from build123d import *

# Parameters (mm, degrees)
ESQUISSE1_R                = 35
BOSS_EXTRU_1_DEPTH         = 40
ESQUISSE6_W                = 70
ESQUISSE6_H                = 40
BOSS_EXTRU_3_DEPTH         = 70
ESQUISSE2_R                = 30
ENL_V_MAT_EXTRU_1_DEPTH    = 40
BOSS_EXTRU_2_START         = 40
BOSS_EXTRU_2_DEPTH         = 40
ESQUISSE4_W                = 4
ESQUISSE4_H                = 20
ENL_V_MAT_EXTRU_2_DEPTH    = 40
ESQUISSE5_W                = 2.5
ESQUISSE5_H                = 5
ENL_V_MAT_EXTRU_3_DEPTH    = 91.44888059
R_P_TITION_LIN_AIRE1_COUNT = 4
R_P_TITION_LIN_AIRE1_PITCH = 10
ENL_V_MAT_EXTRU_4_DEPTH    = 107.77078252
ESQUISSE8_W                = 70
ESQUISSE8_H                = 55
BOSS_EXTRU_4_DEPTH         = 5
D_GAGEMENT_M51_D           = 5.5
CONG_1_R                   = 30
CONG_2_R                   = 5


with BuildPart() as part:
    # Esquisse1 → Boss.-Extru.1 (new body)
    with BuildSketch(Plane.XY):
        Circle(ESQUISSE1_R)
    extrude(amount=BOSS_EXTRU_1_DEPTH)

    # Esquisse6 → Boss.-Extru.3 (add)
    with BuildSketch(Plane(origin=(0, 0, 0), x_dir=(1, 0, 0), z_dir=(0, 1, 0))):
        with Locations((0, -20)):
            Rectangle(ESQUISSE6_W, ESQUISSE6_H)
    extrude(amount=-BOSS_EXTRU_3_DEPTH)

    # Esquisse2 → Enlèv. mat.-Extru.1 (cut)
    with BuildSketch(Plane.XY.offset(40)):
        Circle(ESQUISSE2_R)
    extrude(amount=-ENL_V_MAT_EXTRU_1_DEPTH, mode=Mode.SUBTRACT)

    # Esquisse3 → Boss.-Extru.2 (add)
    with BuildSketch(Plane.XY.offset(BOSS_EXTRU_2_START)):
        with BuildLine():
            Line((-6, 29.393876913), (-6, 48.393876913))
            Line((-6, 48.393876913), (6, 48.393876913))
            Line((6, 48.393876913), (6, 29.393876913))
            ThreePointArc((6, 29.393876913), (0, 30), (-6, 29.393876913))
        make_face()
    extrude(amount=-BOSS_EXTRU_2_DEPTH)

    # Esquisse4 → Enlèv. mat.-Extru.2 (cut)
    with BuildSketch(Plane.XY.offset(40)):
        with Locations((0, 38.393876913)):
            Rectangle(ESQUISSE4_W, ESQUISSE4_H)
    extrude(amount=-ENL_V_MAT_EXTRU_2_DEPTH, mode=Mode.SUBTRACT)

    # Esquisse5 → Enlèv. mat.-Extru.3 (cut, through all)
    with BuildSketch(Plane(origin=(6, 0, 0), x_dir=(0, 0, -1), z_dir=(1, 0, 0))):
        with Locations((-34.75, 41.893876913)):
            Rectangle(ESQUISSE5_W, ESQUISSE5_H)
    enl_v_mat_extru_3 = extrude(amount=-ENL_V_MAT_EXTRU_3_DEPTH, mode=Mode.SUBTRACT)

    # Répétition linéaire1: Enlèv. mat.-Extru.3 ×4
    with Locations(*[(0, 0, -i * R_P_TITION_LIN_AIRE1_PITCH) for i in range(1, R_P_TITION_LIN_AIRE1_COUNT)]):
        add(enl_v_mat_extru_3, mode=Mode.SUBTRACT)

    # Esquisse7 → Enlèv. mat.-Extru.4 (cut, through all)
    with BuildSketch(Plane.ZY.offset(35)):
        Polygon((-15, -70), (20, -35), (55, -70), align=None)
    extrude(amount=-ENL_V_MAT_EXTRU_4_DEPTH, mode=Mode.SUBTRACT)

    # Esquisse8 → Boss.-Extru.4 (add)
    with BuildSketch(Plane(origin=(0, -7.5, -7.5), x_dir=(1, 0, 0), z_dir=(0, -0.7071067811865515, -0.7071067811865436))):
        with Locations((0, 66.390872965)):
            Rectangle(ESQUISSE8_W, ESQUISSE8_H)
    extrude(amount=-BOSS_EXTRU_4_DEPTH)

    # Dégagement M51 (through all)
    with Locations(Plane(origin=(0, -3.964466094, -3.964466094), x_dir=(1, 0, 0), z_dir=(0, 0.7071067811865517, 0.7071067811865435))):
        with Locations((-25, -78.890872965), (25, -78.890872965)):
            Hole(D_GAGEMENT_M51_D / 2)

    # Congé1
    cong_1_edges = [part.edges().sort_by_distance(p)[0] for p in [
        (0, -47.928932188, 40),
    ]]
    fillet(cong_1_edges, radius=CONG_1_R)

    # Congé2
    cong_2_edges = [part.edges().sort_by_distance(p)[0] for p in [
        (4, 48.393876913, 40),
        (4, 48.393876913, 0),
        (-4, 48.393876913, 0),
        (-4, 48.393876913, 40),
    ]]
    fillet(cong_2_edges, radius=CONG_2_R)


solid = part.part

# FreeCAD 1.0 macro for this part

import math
import FreeCAD as App
import Part
import Sketcher


def edges_at(feature, points):
    """Names of the edges that pass closest to the given points."""
    edges = feature.Shape.Edges
    near = lambda p: min(range(len(edges)), key=lambda i: edges[i].distToShape(Part.Vertex(*p))[0])
    return sorted({f"Edge{near(p) + 1}" for p in points})

doc = App.newDocument("Part")
body = doc.addObject("PartDesign::Body", "Body")

sketch1 = doc.addObject("Sketcher::SketchObject", "Sketch")
body.addObject(sketch1)
sketch1.AttachmentSupport = (doc.XY_Plane, [""])
sketch1.MapMode = "FlatFace"
sketch1.addGeometry(Part.Circle(App.Vector(0, 0, 0), App.Vector(0, 0, 1), 35), False)
sketch1.addConstraint([
    Sketcher.Constraint("Coincident", 0, 3, -1, 1),
    Sketcher.Constraint("Diameter", 0, 70.0),
])
pad1 = doc.addObject("PartDesign::Pad", "Pad")
body.addObject(pad1)
pad1.Profile = sketch1
pad1.Length = 40

sketch2 = doc.addObject("Sketcher::SketchObject", "Sketch001")
body.addObject(sketch2)
sketch2.AttachmentSupport = (doc.XZ_Plane, [""])
sketch2.MapMode = "FlatFace"
sketch2.addGeometry([
    Part.LineSegment(App.Vector(-35, 0, 0), App.Vector(-35, 40, 0)),
    Part.LineSegment(App.Vector(-35, 40, 0), App.Vector(35, 40, 0)),
    Part.LineSegment(App.Vector(35, 40, 0), App.Vector(35, 0, 0)),
    Part.LineSegment(App.Vector(35, 0, 0), App.Vector(-35, 0, 0)),
], False)
sketch2.addConstraint([
    Sketcher.Constraint("Coincident", 0, 2, 1, 1),
    Sketcher.Constraint("Coincident", 1, 2, 2, 1),
    Sketcher.Constraint("Coincident", 2, 2, 3, 1),
    Sketcher.Constraint("Coincident", 3, 2, 0, 1),
    Sketcher.Constraint("Vertical", 0),
    Sketcher.Constraint("Horizontal", 1),
    Sketcher.Constraint("Vertical", 2),
    Sketcher.Constraint("Horizontal", 3),
    Sketcher.Constraint("Symmetric", 2, 2, 3, 2, -1, 1),
    Sketcher.Constraint("DistanceX", 1, 1, 1, 2, 70.0),
    Sketcher.Constraint("DistanceY", 0, 1, 0, 2, 40.0),
])
pad2 = doc.addObject("PartDesign::Pad", "Pad001")
body.addObject(pad2)
pad2.Profile = sketch2
pad2.Length = 70

sketch3 = doc.addObject("Sketcher::SketchObject", "Sketch002")
body.addObject(sketch3)
sketch3.AttachmentSupport = (doc.XY_Plane, [""])
sketch3.MapMode = "FlatFace"
sketch3.AttachmentOffset = App.Placement(App.Vector(0, 0, 40), App.Rotation())
sketch3.addGeometry(Part.Circle(App.Vector(0, 0, 0), App.Vector(0, 0, 1), 30), False)
sketch3.addConstraint([
    Sketcher.Constraint("Coincident", 0, 3, -1, 1),
    Sketcher.Constraint("Diameter", 0, 60.0),
])
pocket1 = doc.addObject("PartDesign::Pocket", "Pocket")
body.addObject(pocket1)
pocket1.Profile = sketch3
pocket1.Length = 40

sketch4 = doc.addObject("Sketcher::SketchObject", "Sketch003")
body.addObject(sketch4)
sketch4.AttachmentSupport = (doc.XY_Plane, [""])
sketch4.MapMode = "FlatFace"
sketch4.AttachmentOffset = App.Placement(App.Vector(0, 0, 40), App.Rotation())
sketch4.addGeometry([
    Part.LineSegment(App.Vector(-6, 48, 0), App.Vector(-6, 29, 0)),
    Part.ArcOfCircle(Part.Circle(App.Vector(0, 0, 0), App.Vector(0, 0, 1), 30), math.radians(78), math.radians(102)),
    Part.LineSegment(App.Vector(6, 29, 0), App.Vector(6, 48, 0)),
    Part.LineSegment(App.Vector(6, 48, 0), App.Vector(-6, 48, 0)),
], False)
sketch4.addConstraint([
    Sketcher.Constraint("Coincident", 0, 2, 1, 2),
    Sketcher.Constraint("Coincident", 1, 1, 2, 1),
    Sketcher.Constraint("Coincident", 2, 2, 3, 1),
    Sketcher.Constraint("Coincident", 3, 2, 0, 1),
    Sketcher.Constraint("Vertical", 0),
    Sketcher.Constraint("Vertical", 2),
    Sketcher.Constraint("Horizontal", 3),
    Sketcher.Constraint("Coincident", 1, 3, -1, 1),
    Sketcher.Constraint("Horizontal", 0, 2, 1, 1),
    Sketcher.Constraint("Radius", 1, 30.0),
    Sketcher.Constraint("DistanceX", 3, 2, 3, 1, 12.0),
    Sketcher.Constraint("DistanceY", 0, 2, 0, 1, 19.0),
])
pad3 = doc.addObject("PartDesign::Pad", "Pad002")
body.addObject(pad3)
pad3.Profile = sketch4
pad3.Length = 40
pad3.Reversed = True

sketch5 = doc.addObject("Sketcher::SketchObject", "Sketch004")
body.addObject(sketch5)
sketch5.AttachmentSupport = (doc.XY_Plane, [""])
sketch5.MapMode = "FlatFace"
sketch5.AttachmentOffset = App.Placement(App.Vector(0, 0, 40), App.Rotation())
sketch5.addGeometry([
    Part.LineSegment(App.Vector(-2, 48.4, 0), App.Vector(-2, 28.4, 0)),
    Part.LineSegment(App.Vector(-2, 28.4, 0), App.Vector(2, 28.4, 0)),
    Part.LineSegment(App.Vector(2, 28.4, 0), App.Vector(2, 48.4, 0)),
    Part.LineSegment(App.Vector(2, 48.4, 0), App.Vector(-2, 48.4, 0)),
], False)
sketch5.addConstraint([
    Sketcher.Constraint("Coincident", 0, 2, 1, 1),
    Sketcher.Constraint("Coincident", 1, 2, 2, 1),
    Sketcher.Constraint("Coincident", 2, 2, 3, 1),
    Sketcher.Constraint("Coincident", 3, 2, 0, 1),
    Sketcher.Constraint("Vertical", 0),
    Sketcher.Constraint("Horizontal", 1),
    Sketcher.Constraint("Vertical", 2),
    Sketcher.Constraint("Horizontal", 3),
    Sketcher.Constraint("DistanceX", 1, 1, 1, 2, 4.0),
    Sketcher.Constraint("DistanceY", 0, 2, 0, 1, 20.0),
    Sketcher.Constraint("DistanceX", 0, 2, -1, 1, 2.0),
    Sketcher.Constraint("DistanceY", -1, 1, 0, 2, 28.393877),
])
pocket2 = doc.addObject("PartDesign::Pocket", "Pocket001")
body.addObject(pocket2)
pocket2.Profile = sketch5
pocket2.Length = 40

sketch6 = doc.addObject("Sketcher::SketchObject", "Sketch005")
body.addObject(sketch6)
sketch6.AttachmentSupport = (doc.YZ_Plane, [""])
sketch6.MapMode = "FlatFace"
sketch6.AttachmentOffset = App.Placement(App.Vector(0, 0, 6), App.Rotation())
sketch6.addGeometry([
    Part.LineSegment(App.Vector(44.4, 36, 0), App.Vector(39.4, 36, 0)),
    Part.LineSegment(App.Vector(39.4, 36, 0), App.Vector(39.4, 33.5, 0)),
    Part.LineSegment(App.Vector(39.4, 33.5, 0), App.Vector(44.4, 33.5, 0)),
    Part.LineSegment(App.Vector(44.4, 33.5, 0), App.Vector(44.4, 36, 0)),
], False)
sketch6.addConstraint([
    Sketcher.Constraint("Coincident", 0, 2, 1, 1),
    Sketcher.Constraint("Coincident", 1, 2, 2, 1),
    Sketcher.Constraint("Coincident", 2, 2, 3, 1),
    Sketcher.Constraint("Coincident", 3, 2, 0, 1),
    Sketcher.Constraint("Horizontal", 0),
    Sketcher.Constraint("Vertical", 1),
    Sketcher.Constraint("Horizontal", 2),
    Sketcher.Constraint("Vertical", 3),
    Sketcher.Constraint("DistanceX", 0, 2, 0, 1, 5.0),
    Sketcher.Constraint("DistanceY", 1, 2, 1, 1, 2.5),
    Sketcher.Constraint("DistanceY", -1, 1, 0, 2, 36.0),
    Sketcher.Constraint("DistanceX", -1, 1, 0, 2, 39.393877),
])
pocket3 = doc.addObject("PartDesign::Pocket", "Pocket002")
body.addObject(pocket3)
pocket3.Profile = sketch6
pocket3.Type = "ThroughAll"
doc.recompute()

linearpattern = doc.addObject("PartDesign::LinearPattern", "LinearPattern")
body.addObject(linearpattern)
linearpattern.Originals = [pocket3]
linearpattern.Direction = (doc.Z_Axis, [""])
linearpattern.Mode = "offset"
linearpattern.Offset = 10
linearpattern.Occurrences = 4
linearpattern.Reversed = True
body.Tip = linearpattern

sketch7 = doc.addObject("Sketcher::SketchObject", "Sketch006")
body.addObject(sketch7)
sketch7.AttachmentSupport = (doc.YZ_Plane, [""])
sketch7.MapMode = "FlatFace"
sketch7.AttachmentOffset = App.Placement(App.Vector(0, 0, -35), App.Rotation())
sketch7.addGeometry([
    Part.LineSegment(App.Vector(-35, 20, 0), App.Vector(-70, -15, 0)),
    Part.LineSegment(App.Vector(-70, -15, 0), App.Vector(-70, 55, 0)),
    Part.LineSegment(App.Vector(-70, 55, 0), App.Vector(-35, 20, 0)),
], False)
sketch7.addConstraint([
    Sketcher.Constraint("Coincident", 0, 2, 1, 1),
    Sketcher.Constraint("Coincident", 1, 2, 2, 1),
    Sketcher.Constraint("Coincident", 2, 2, 0, 1),
    Sketcher.Constraint("Vertical", 1),
    Sketcher.Constraint("Perpendicular", 0, 2),
    Sketcher.Constraint("Equal", 0, 2),
    Sketcher.Constraint("DistanceY", 1, 1, 1, 2, 70.0),
    Sketcher.Constraint("DistanceX", 0, 2, -1, 1, 70.0),
    Sketcher.Constraint("DistanceY", 0, 2, -1, 1, 15.0),
])
pocket4 = doc.addObject("PartDesign::Pocket", "Pocket003")
body.addObject(pocket4)
pocket4.Profile = sketch7
pocket4.Type = "ThroughAll"
pocket4.Reversed = True

sketch8 = doc.addObject("Sketcher::SketchObject", "Sketch007")
body.addObject(sketch8)
sketch8.Placement = App.Placement(App.Vector(0, -7.5, -7.5), App.Rotation(App.Vector(1, 0, 0), App.Vector(0, -0.707106781, 0.707106781), App.Vector(0, -0.707106781, -0.707106781), "ZXY"))
sketch8.addGeometry([
    Part.LineSegment(App.Vector(-35, 94, 0), App.Vector(-35, 39, 0)),
    Part.LineSegment(App.Vector(-35, 39, 0), App.Vector(35, 39, 0)),
    Part.LineSegment(App.Vector(35, 39, 0), App.Vector(35, 94, 0)),
    Part.LineSegment(App.Vector(35, 94, 0), App.Vector(-35, 94, 0)),
], False)
sketch8.addConstraint([
    Sketcher.Constraint("Coincident", 0, 2, 1, 1),
    Sketcher.Constraint("Coincident", 1, 2, 2, 1),
    Sketcher.Constraint("Coincident", 2, 2, 3, 1),
    Sketcher.Constraint("Coincident", 3, 2, 0, 1),
    Sketcher.Constraint("Vertical", 0),
    Sketcher.Constraint("Horizontal", 1),
    Sketcher.Constraint("Vertical", 2),
    Sketcher.Constraint("Horizontal", 3),
    Sketcher.Constraint("DistanceX", 1, 1, 1, 2, 70.0),
    Sketcher.Constraint("DistanceY", 0, 2, 0, 1, 55.0),
    Sketcher.Constraint("DistanceX", 0, 2, -1, 1, 35.0),
    Sketcher.Constraint("DistanceY", -1, 1, 0, 2, 38.890873),
])
pad4 = doc.addObject("PartDesign::Pad", "Pad003")
body.addObject(pad4)
pad4.Profile = sketch8
pad4.Length = 5
pad4.Reversed = True

sketch9 = doc.addObject("Sketcher::SketchObject", "Sketch008")
body.addObject(sketch9)
sketch9.Placement = App.Placement(App.Vector(0, -3.964466, -3.964466), App.Rotation(App.Vector(1, 0, 0), App.Vector(0, 0.707106781, -0.707106781), App.Vector(0, 0.707106781, 0.707106781), "ZXY"))
sketch9.addGeometry([
    Part.Circle(App.Vector(-25, -78.9, 0), App.Vector(0, 0, 1), 2.8),
    Part.Circle(App.Vector(25, -78.9, 0), App.Vector(0, 0, 1), 2.8),
], False)
sketch9.addConstraint([
    Sketcher.Constraint("Equal", 0, 1),
    Sketcher.Constraint("Symmetric", 0, 3, 1, 3, -2),
    Sketcher.Constraint("Diameter", 0, 5.5),
    Sketcher.Constraint("DistanceX", 0, 3, -1, 1, 25.0),
    Sketcher.Constraint("DistanceY", 0, 3, -1, 1, 78.890873),
])
doc.recompute()
hole = doc.addObject("PartDesign::Hole", "Hole")
body.addObject(hole)
hole.Profile = sketch9
hole.ThreadType = "None"
hole.Diameter = 5.5
hole.DepthType = "ThroughAll"
doc.recompute()

fillet = doc.addObject("PartDesign::Fillet", "Fillet")
body.addObject(fillet)
fillet.Base = (hole, edges_at(hole, [(0, -47.929, 40)]))
fillet.Radius = 30
doc.recompute()

fillet2 = doc.addObject("PartDesign::Fillet", "Fillet001")
body.addObject(fillet2)
fillet2.Base = (fillet, edges_at(fillet, [
    (4, 48.394, 40),
    (4, 48.394, 0),
    (-4, 48.394, 0),
    (-4, 48.394, 40),
]))
fillet2.Radius = 5

doc.recompute()
